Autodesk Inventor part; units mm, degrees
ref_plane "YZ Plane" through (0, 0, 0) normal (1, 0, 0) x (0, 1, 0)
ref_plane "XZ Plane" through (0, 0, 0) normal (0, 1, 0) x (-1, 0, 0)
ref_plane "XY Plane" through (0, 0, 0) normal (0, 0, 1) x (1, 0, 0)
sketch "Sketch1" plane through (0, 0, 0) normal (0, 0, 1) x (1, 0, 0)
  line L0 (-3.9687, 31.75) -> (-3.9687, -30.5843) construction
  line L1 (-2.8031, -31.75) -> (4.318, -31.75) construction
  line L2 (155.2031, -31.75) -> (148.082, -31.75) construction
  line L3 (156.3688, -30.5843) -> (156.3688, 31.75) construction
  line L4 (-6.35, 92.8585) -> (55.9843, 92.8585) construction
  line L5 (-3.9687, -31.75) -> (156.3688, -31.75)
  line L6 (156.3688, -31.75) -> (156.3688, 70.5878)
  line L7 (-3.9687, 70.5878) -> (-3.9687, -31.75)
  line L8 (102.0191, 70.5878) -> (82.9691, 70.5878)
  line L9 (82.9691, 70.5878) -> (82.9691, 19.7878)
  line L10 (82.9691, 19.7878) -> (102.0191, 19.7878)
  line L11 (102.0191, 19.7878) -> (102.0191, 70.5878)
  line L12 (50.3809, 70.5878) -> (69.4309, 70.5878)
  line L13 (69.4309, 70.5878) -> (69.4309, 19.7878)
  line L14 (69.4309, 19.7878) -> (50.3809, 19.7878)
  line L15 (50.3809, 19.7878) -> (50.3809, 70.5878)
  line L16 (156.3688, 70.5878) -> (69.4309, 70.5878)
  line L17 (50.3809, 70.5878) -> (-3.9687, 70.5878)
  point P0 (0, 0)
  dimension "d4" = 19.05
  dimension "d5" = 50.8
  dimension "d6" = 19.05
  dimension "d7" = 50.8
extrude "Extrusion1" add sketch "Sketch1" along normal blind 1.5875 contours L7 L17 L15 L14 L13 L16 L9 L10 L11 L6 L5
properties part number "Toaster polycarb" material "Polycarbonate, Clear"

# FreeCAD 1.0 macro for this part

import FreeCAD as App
import Part
import Sketcher
from FreeCAD import Vector
Q = App.Units.Quantity

doc = App.newDocument("Part")
body = doc.addObject("PartDesign::Body", "Body")

# Sketch on XY plane
sketch1 = body.newObject("Sketcher::SketchObject", "Sketch")
sketch1.AttachmentSupport = (doc.getObject("XY_Plane"), [""])
sketch1.MapMode = "FlatFace"
sketch1.addGeometry(Part.LineSegment(Vector(-3.9687, 70.5878, 0), Vector(-3.9687, -31.75, 0)), False)
sketch1.addGeometry(Part.LineSegment(Vector(-3.9687, -31.75, 0), Vector(156.3688, -31.75, 0)), False)
sketch1.addGeometry(Part.LineSegment(Vector(156.3688, -31.75, 0), Vector(156.3688, 70.5878, 0)), False)
sketch1.addGeometry(Part.LineSegment(Vector(156.3688, 70.5878, 0), Vector(102.0191, 70.5878, 0)), False)
sketch1.addGeometry(Part.LineSegment(Vector(102.0191, 70.5878, 0), Vector(102.0191, 19.7878, 0)), False)
sketch1.addGeometry(Part.LineSegment(Vector(102.0191, 19.7878, 0), Vector(82.9691, 19.7878, 0)), False)
sketch1.addGeometry(Part.LineSegment(Vector(82.9691, 19.7878, 0), Vector(82.9691, 70.5878, 0)), False)
sketch1.addGeometry(Part.LineSegment(Vector(82.9691, 70.5878, 0), Vector(69.4309, 70.5878, 0)), False)
sketch1.addGeometry(Part.LineSegment(Vector(69.4309, 70.5878, 0), Vector(69.4309, 19.7878, 0)), False)
sketch1.addGeometry(Part.LineSegment(Vector(69.4309, 19.7878, 0), Vector(50.3809, 19.7878, 0)), False)
sketch1.addGeometry(Part.LineSegment(Vector(50.3809, 19.7878, 0), Vector(50.3809, 70.5878, 0)), False)
sketch1.addGeometry(Part.LineSegment(Vector(50.3809, 70.5878, 0), Vector(-3.9687, 70.5878, 0)), False)
sketch1.addConstraint(Sketcher.Constraint("Coincident", 0, 2, 1, 1))
sketch1.addConstraint(Sketcher.Constraint("Coincident", 1, 2, 2, 1))
sketch1.addConstraint(Sketcher.Constraint("Coincident", 2, 2, 3, 1))
sketch1.addConstraint(Sketcher.Constraint("Coincident", 3, 2, 4, 1))
sketch1.addConstraint(Sketcher.Constraint("Coincident", 4, 2, 5, 1))
sketch1.addConstraint(Sketcher.Constraint("Coincident", 5, 2, 6, 1))
sketch1.addConstraint(Sketcher.Constraint("Coincident", 6, 2, 7, 1))
sketch1.addConstraint(Sketcher.Constraint("Coincident", 7, 2, 8, 1))
sketch1.addConstraint(Sketcher.Constraint("Coincident", 8, 2, 9, 1))
sketch1.addConstraint(Sketcher.Constraint("Coincident", 9, 2, 10, 1))
sketch1.addConstraint(Sketcher.Constraint("Coincident", 10, 2, 11, 1))
sketch1.addConstraint(Sketcher.Constraint("Coincident", 11, 2, 0, 1))
sketch1.addConstraint(Sketcher.Constraint("Vertical", 0))
sketch1.addConstraint(Sketcher.Constraint("Horizontal", 1))
sketch1.addConstraint(Sketcher.Constraint("Vertical", 2))
sketch1.addConstraint(Sketcher.Constraint("Horizontal", 3))
sketch1.addConstraint(Sketcher.Constraint("Vertical", 4))
sketch1.addConstraint(Sketcher.Constraint("Horizontal", 5))
sketch1.addConstraint(Sketcher.Constraint("Vertical", 6))
sketch1.addConstraint(Sketcher.Constraint("Horizontal", 7))
sketch1.addConstraint(Sketcher.Constraint("Vertical", 8))
sketch1.addConstraint(Sketcher.Constraint("Horizontal", 9))
sketch1.addConstraint(Sketcher.Constraint("Vertical", 10))
sketch1.addConstraint(Sketcher.Constraint("Horizontal", 11))
sketch1.addConstraint(Sketcher.Constraint("Horizontal", 3, 2, 6, 2))
sketch1.addConstraint(Sketcher.Constraint("Horizontal", 5, 2, 8, 2))
sketch1.addConstraint(Sketcher.Constraint("Horizontal", 7, 2, 10, 2))
sketch1.addConstraint(Sketcher.Constraint("Equal", 5, 9))
sketch1.addConstraint(Sketcher.Constraint("Equal", 3, 11))
sketch1.addConstraint(Sketcher.Constraint("DistanceY", 4, 2, 4, 1, Q("2 in")))
sketch1.addConstraint(Sketcher.Constraint("DistanceX", 5, 2, 5, 1, Q("0.75 in")))
sketch1.addConstraint(Sketcher.Constraint("DistanceX", 1, 1, 1, 2, Q("6.3125 in")))
sketch1.addConstraint(Sketcher.Constraint("DistanceX", 7, 2, 7, 1, Q("0.533 in")))
sketch1.addConstraint(Sketcher.Constraint("DistanceY", 0, 2, -1, 1, Q("1.25 in")))
sketch1.addConstraint(Sketcher.Constraint("DistanceX", 0, 2, -1, 1, Q("0.156248 in")))
sketch1.addConstraint(Sketcher.Constraint("DistanceY", 0, 2, 0, 1, 102.3378))
pad1 = body.newObject("PartDesign::Pad", "Pad")
pad1.Profile = sketch1
pad1.Length = Q("0.0625 in")

doc.recompute()
